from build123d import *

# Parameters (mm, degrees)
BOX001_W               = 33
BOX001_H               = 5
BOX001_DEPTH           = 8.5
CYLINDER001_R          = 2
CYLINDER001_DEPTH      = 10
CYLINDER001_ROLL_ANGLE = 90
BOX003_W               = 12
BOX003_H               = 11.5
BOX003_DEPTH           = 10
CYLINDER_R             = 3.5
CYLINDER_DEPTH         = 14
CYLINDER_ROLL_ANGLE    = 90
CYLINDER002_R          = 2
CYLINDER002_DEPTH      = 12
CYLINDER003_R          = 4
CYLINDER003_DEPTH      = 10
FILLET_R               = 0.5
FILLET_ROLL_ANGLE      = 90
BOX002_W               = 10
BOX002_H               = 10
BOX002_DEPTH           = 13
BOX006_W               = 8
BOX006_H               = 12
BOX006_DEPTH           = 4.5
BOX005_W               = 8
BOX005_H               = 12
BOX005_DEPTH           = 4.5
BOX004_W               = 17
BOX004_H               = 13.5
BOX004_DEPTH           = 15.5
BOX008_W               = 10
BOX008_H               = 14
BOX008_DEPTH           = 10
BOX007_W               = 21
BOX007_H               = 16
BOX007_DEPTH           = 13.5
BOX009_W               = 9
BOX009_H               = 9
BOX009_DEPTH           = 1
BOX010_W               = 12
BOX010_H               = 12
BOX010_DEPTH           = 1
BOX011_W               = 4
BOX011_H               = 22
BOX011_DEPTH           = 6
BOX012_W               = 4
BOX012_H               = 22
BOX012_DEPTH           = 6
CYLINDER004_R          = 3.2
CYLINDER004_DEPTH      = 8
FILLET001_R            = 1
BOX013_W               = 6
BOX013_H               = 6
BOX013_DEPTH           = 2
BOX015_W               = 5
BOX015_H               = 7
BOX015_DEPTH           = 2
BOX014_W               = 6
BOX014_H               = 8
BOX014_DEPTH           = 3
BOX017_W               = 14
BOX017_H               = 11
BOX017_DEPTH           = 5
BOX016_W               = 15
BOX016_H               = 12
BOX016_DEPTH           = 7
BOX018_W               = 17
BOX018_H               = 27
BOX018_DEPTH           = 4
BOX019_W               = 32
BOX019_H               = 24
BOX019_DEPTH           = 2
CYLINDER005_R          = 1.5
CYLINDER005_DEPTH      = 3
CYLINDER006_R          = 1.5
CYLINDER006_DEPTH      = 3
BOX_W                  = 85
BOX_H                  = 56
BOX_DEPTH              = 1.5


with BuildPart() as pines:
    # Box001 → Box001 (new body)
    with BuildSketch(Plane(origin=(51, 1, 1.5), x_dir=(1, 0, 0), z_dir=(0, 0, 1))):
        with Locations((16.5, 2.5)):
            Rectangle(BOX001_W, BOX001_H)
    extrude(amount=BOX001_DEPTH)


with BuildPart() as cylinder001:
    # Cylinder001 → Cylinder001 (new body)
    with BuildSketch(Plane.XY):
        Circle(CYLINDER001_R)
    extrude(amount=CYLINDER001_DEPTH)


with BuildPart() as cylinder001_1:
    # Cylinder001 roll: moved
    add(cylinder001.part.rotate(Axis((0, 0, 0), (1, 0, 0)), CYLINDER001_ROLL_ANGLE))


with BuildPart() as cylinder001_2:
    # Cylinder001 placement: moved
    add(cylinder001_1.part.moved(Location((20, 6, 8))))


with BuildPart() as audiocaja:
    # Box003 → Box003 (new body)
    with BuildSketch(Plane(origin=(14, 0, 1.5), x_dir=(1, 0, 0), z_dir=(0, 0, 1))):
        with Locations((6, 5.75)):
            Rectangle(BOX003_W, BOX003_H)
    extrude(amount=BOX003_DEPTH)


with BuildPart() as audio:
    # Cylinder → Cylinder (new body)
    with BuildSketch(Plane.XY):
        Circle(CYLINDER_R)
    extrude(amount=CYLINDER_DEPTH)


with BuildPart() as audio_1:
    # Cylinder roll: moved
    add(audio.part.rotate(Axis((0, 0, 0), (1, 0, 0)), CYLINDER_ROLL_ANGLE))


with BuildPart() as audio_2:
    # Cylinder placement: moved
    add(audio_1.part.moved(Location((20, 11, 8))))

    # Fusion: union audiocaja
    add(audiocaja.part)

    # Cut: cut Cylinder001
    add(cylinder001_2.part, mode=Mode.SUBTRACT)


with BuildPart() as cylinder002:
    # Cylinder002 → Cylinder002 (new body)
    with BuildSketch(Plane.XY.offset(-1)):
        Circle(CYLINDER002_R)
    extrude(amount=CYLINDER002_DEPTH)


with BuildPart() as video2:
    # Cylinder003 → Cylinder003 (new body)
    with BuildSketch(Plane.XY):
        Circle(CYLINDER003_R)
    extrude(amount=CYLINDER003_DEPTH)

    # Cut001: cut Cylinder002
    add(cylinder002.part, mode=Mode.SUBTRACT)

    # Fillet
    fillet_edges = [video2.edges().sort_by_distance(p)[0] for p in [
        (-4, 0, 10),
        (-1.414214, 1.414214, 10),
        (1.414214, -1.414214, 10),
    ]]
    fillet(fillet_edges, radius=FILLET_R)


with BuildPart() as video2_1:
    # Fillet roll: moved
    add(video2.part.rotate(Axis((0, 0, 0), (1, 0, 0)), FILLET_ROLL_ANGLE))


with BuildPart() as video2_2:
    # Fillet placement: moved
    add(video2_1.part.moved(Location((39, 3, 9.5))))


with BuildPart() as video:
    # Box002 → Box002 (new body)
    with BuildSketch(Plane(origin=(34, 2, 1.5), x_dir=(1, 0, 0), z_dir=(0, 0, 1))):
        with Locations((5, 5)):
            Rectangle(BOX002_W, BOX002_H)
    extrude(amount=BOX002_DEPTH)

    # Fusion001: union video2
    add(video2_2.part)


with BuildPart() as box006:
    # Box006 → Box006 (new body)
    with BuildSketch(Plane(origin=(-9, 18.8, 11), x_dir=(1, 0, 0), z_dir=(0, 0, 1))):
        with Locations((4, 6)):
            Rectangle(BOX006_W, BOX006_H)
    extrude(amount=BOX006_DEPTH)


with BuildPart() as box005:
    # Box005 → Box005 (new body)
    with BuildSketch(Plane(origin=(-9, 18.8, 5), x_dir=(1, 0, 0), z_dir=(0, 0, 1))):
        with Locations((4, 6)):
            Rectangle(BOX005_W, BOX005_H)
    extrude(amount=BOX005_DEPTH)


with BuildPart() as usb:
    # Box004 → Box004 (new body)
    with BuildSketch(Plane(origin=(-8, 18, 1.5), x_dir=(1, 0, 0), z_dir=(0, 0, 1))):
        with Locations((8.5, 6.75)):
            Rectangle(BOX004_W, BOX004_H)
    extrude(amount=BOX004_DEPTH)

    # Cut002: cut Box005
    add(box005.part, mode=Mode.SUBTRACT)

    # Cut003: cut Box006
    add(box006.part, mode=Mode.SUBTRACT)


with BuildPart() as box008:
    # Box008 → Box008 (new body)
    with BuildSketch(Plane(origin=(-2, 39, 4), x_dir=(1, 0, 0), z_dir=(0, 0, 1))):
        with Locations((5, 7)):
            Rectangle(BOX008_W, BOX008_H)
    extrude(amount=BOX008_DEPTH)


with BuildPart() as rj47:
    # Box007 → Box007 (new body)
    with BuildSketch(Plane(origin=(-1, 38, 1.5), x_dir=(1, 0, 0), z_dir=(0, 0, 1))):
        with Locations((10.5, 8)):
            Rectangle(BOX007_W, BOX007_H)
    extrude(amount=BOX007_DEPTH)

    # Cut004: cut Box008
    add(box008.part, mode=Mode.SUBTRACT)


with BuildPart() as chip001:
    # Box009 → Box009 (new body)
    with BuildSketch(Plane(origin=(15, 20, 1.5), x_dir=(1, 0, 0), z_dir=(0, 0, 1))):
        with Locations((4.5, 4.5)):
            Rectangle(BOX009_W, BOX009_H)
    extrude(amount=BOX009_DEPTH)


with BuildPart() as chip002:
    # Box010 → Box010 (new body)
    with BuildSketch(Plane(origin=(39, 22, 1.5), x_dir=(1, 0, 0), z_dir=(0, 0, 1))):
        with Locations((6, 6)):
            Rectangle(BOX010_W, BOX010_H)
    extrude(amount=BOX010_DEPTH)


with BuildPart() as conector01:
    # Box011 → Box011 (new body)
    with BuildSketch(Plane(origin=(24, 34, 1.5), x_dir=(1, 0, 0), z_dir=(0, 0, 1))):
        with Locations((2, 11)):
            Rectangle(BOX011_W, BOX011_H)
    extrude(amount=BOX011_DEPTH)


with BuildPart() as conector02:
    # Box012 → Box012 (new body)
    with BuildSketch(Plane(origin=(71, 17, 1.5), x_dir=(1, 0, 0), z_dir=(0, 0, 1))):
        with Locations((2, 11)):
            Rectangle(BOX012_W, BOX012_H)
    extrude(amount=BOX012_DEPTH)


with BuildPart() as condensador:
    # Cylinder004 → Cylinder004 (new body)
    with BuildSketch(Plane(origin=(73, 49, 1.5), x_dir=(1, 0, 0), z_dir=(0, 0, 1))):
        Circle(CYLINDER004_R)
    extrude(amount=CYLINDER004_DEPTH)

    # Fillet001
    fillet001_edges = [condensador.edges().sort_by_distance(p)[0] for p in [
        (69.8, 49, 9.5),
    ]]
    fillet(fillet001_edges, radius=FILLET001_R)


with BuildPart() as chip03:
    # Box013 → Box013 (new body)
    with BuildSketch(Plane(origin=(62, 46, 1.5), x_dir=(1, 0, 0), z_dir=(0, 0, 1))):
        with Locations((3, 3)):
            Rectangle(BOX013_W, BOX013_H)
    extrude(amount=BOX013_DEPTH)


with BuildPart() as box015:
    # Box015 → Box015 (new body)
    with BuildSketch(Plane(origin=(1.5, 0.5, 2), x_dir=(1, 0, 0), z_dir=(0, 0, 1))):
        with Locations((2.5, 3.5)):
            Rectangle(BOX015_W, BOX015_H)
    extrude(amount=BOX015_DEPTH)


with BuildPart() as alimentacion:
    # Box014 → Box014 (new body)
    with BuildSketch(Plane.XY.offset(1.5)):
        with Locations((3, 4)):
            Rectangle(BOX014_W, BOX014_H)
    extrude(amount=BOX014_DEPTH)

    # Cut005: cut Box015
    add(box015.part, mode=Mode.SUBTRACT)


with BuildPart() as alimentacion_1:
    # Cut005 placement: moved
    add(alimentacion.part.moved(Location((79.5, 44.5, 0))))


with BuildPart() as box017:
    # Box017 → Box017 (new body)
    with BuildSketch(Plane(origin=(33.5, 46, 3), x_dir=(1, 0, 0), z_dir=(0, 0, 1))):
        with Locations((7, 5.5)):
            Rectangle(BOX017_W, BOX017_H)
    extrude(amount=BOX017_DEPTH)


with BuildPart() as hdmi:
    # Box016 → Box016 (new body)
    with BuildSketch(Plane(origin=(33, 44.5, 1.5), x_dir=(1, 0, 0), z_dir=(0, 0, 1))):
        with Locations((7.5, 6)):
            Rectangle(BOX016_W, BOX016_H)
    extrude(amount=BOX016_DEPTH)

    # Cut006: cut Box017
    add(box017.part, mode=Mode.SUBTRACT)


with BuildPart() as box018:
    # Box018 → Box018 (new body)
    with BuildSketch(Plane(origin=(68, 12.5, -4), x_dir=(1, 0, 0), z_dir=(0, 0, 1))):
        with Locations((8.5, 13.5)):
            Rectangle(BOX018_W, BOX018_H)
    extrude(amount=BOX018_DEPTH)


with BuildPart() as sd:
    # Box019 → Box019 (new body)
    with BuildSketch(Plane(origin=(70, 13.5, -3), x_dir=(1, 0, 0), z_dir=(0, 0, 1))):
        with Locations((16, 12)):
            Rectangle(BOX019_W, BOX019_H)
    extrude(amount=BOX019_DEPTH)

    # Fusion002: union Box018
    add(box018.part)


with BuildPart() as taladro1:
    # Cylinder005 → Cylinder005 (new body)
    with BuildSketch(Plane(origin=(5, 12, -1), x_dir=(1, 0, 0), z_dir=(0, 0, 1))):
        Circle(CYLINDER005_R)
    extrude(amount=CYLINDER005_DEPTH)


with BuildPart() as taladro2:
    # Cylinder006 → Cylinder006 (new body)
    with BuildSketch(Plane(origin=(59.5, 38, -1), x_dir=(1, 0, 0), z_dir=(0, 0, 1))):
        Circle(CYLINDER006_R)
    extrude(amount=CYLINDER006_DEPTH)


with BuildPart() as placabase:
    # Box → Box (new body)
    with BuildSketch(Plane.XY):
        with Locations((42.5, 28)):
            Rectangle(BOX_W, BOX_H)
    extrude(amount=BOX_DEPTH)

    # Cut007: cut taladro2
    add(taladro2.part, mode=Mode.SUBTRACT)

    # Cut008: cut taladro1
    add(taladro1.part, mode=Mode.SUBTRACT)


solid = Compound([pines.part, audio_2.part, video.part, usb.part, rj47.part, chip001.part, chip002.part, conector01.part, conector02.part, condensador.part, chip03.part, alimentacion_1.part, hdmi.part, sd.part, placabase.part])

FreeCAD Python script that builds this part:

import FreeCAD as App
import Part
import Sketcher

V = App.Vector


def edges_at(feature, points):
    """Names of the edges that pass closest to the given points."""
    edges = feature.Shape.Edges
    near = lambda p: min(range(len(edges)), key=lambda i: edges[i].distToShape(Part.Vertex(*p))[0])
    return sorted({f"Edge{near(p) + 1}" for p in points})

doc = App.newDocument("Part")
params = doc.addObject("Spreadsheet::Sheet", "Params")
for row, (alias, value) in enumerate([
    ("sketch1_width", "33 mm"),
    ("sketch1_height", "5 mm"),
    ("pad1_length", "8.5 mm"),
    ("sketch2_diameter", "4 mm"),
    ("pad2_length", "10 mm"),
    ("sketch3_width", "12 mm"),
    ("sketch3_height", "11.5 mm"),
    ("pad3_length", "10 mm"),
    ("sketch4_diameter", "7 mm"),
    ("pad4_length", "14 mm"),
    ("sketch5_diameter", "4 mm"),
    ("pad5_length", "12 mm"),
    ("sketch6_diameter", "8 mm"),
    ("pad6_length", "10 mm"),
    ("fillet_radius", "0.5 mm"),
    ("sketch7_width", "10 mm"),
    ("pad7_length", "13 mm"),
    ("sketch8_width", "8 mm"),
    ("sketch8_height", "12 mm"),
    ("pad8_length", "4.5 mm"),
    ("sketch9_width", "8 mm"),
    ("sketch9_height", "12 mm"),
    ("pad9_length", "4.5 mm"),
    ("sketch10_width", "17 mm"),
    ("sketch10_height", "13.5 mm"),
    ("pad10_length", "15.5 mm"),
    ("sketch11_width", "10 mm"),
    ("sketch11_height", "14 mm"),
    ("pad11_length", "10 mm"),
    ("sketch12_width", "21 mm"),
    ("sketch12_height", "16 mm"),
    ("pad12_length", "13.5 mm"),
    ("sketch13_width", "9 mm"),
    ("pad13_length", "1 mm"),
    ("sketch14_width", "12 mm"),
    ("pad14_length", "1 mm"),
    ("sketch15_width", "4 mm"),
    ("sketch15_height", "22 mm"),
    ("pad15_length", "6 mm"),
    ("sketch16_width", "4 mm"),
    ("sketch16_height", "22 mm"),
    ("pad16_length", "6 mm"),
    ("sketch17_diameter", "6.4 mm"),
    ("pad17_length", "8 mm"),
    ("fillet2_radius", "1 mm"),
    ("sketch18_width", "6 mm"),
    ("pad18_length", "2 mm"),
    ("sketch19_width", "5 mm"),
    ("sketch19_height", "7 mm"),
    ("pad19_length", "2 mm"),
    ("sketch20_width", "6 mm"),
    ("sketch20_height", "8 mm"),
    ("pad20_length", "3 mm"),
    ("sketch21_width", "14 mm"),
    ("sketch21_height", "11 mm"),
    ("pad21_length", "5 mm"),
    ("sketch22_width", "15 mm"),
    ("sketch22_height", "12 mm"),
    ("pad22_length", "7 mm"),
    ("sketch23_width", "17 mm"),
    ("sketch23_height", "27 mm"),
    ("pad23_length", "4 mm"),
    ("sketch24_width", "32 mm"),
    ("sketch24_height", "24 mm"),
    ("pad24_length", "2 mm"),
    ("sketch25_diameter", "3 mm"),
    ("pad25_length", "3 mm"),
    ("sketch26_diameter", "3 mm"),
    ("pad26_length", "3 mm"),
    ("sketch27_width", "85 mm"),
    ("sketch27_height", "56 mm"),
    ("pad27_length", "1.5 mm"),
], start=1):
    params.set(f"A{row}", alias)
    params.set(f"B{row}", "=" + value)
    params.setAlias(f"B{row}", alias)

body = doc.addObject("PartDesign::Body", "Body")

sketch1 = body.newObject("Sketcher::SketchObject", "Sketch")
sketch1.AttachmentSupport = (doc.getObject("XY_Plane"), [""])
sketch1.MapMode = "FlatFace"
sketch1.AttachmentOffset = App.Placement(V(0, 0, 1.5), App.Rotation())
sketch1.addGeometry([
    Part.LineSegment(V(51, 6, 0), V(51, 1, 0)),
    Part.LineSegment(V(51, 1, 0), V(84, 1, 0)),
    Part.LineSegment(V(84, 1, 0), V(84, 6, 0)),
    Part.LineSegment(V(84, 6, 0), V(51, 6, 0)),
], False)
sketch1.addConstraint([
    Sketcher.Constraint("Coincident", 0, 2, 1, 1),
    Sketcher.Constraint("Coincident", 1, 2, 2, 1),
    Sketcher.Constraint("Coincident", 2, 2, 3, 1),
    Sketcher.Constraint("Coincident", 3, 2, 0, 1),
    Sketcher.Constraint("Vertical", 0),
    Sketcher.Constraint("Horizontal", 1),
    Sketcher.Constraint("Vertical", 2),
    Sketcher.Constraint("Horizontal", 3),
    Sketcher.Constraint("DistanceX", 1, 1, 1, 2, 33.0),
    Sketcher.Constraint("DistanceY", 0, 2, 0, 1, 5.0),
    Sketcher.Constraint("DistanceX", -1, 1, 0, 2, 51.0),
    Sketcher.Constraint("DistanceY", -1, 1, 0, 2, 1.0),
])
sketch1.setExpression("Constraints[8]", "Params.sketch1_width")
sketch1.setExpression("Constraints[9]", "Params.sketch1_height")
pad1 = body.newObject("PartDesign::Pad", "Pad")
pad1.Profile = sketch1
pad1.setExpression("Length", "Params.pad1_length")
body2 = doc.addObject("PartDesign::Body", "Body001")

sketch2 = body2.newObject("Sketcher::SketchObject", "Sketch001")
sketch2.AttachmentSupport = (doc.getObject("XY_Plane001"), [""])
sketch2.MapMode = "FlatFace"
sketch2.addGeometry(Part.Circle(V(0, 0, 0), V(0, 0, 1), 2), False)
sketch2.addConstraint([
    Sketcher.Constraint("Coincident", 0, 3, -1, 1),
    Sketcher.Constraint("Diameter", 0, 4.0),
])
sketch2.setExpression("Constraints[1]", "Params.sketch2_diameter")
pad2 = body2.newObject("PartDesign::Pad", "Pad001")
pad2.Profile = sketch2
pad2.setExpression("Length", "Params.pad2_length")
body3 = doc.addObject("PartDesign::Body", "Body002")
doc.recompute()

body2.Placement = App.Placement(V(0, 0, 0), App.Rotation(V(1, 0, 0), 90))
boolean = body3.newObject("PartDesign::Boolean", "Boolean")
boolean.Type = "Fuse"
boolean.addObjects([body2])
body4 = doc.addObject("PartDesign::Body", "Body003")
doc.recompute()

body3.Placement = App.Placement(V(20, 6, 8), App.Rotation(V(0, 0, 1), 0))
boolean2 = body4.newObject("PartDesign::Boolean", "Boolean001")
boolean2.Type = "Fuse"
boolean2.addObjects([body3])
body5 = doc.addObject("PartDesign::Body", "Body004")

sketch3 = body5.newObject("Sketcher::SketchObject", "Sketch002")
sketch3.AttachmentSupport = (doc.getObject("XY_Plane004"), [""])
sketch3.MapMode = "FlatFace"
sketch3.AttachmentOffset = App.Placement(V(0, 0, 1.5), App.Rotation())
sketch3.addGeometry([
    Part.LineSegment(V(14, 12, 0), V(14, 0, 0)),
    Part.LineSegment(V(14, 0, 0), V(26, 0, 0)),
    Part.LineSegment(V(26, 0, 0), V(26, 12, 0)),
    Part.LineSegment(V(26, 12, 0), V(14, 12, 0)),
], False)
sketch3.addConstraint([
    Sketcher.Constraint("Coincident", 0, 2, 1, 1),
    Sketcher.Constraint("Coincident", 1, 2, 2, 1),
    Sketcher.Constraint("Coincident", 2, 2, 3, 1),
    Sketcher.Constraint("Coincident", 3, 2, 0, 1),
    Sketcher.Constraint("Vertical", 0),
    Sketcher.Constraint("Horizontal", 1),
    Sketcher.Constraint("Vertical", 2),
    Sketcher.Constraint("Horizontal", 3),
    Sketcher.Constraint("PointOnObject", 0, 2, -1),
    Sketcher.Constraint("DistanceX", 1, 1, 1, 2, 12.0),
    Sketcher.Constraint("DistanceY", 0, 2, 0, 1, 11.5),
    Sketcher.Constraint("DistanceX", -1, 1, 0, 2, 14.0),
])
sketch3.setExpression("Constraints[9]", "Params.sketch3_width")
sketch3.setExpression("Constraints[10]", "Params.sketch3_height")
pad3 = body5.newObject("PartDesign::Pad", "Pad002")
pad3.Profile = sketch3
pad3.setExpression("Length", "Params.pad3_length")
body6 = doc.addObject("PartDesign::Body", "Body005")

sketch4 = body6.newObject("Sketcher::SketchObject", "Sketch003")
sketch4.AttachmentSupport = (doc.getObject("XY_Plane005"), [""])
sketch4.MapMode = "FlatFace"
sketch4.addGeometry(Part.Circle(V(0, 0, 0), V(0, 0, 1), 3.5), False)
sketch4.addConstraint([
    Sketcher.Constraint("Coincident", 0, 3, -1, 1),
    Sketcher.Constraint("Diameter", 0, 7.0),
])
sketch4.setExpression("Constraints[1]", "Params.sketch4_diameter")
pad4 = body6.newObject("PartDesign::Pad", "Pad003")
pad4.Profile = sketch4
pad4.setExpression("Length", "Params.pad4_length")
body7 = doc.addObject("PartDesign::Body", "Body006")
doc.recompute()

body6.Placement = App.Placement(V(0, 0, 0), App.Rotation(V(1, 0, 0), 90))
boolean3 = body7.newObject("PartDesign::Boolean", "Boolean002")
boolean3.Type = "Fuse"
boolean3.addObjects([body6])
body8 = doc.addObject("PartDesign::Body", "Body007")
doc.recompute()

body7.Placement = App.Placement(V(20, 11, 8), App.Rotation(V(0, 0, 1), 0))
boolean4 = body8.newObject("PartDesign::Boolean", "Boolean003")
boolean4.Type = "Fuse"
boolean4.addObjects([body7])
doc.recompute()

boolean5 = body8.newObject("PartDesign::Boolean", "Boolean004")
boolean5.Type = "Fuse"
boolean5.addObjects([body5])
doc.recompute()

boolean6 = body8.newObject("PartDesign::Boolean", "Boolean005")
boolean6.Type = "Cut"
boolean6.addObjects([body4])
body9 = doc.addObject("PartDesign::Body", "Body008")

sketch5 = body9.newObject("Sketcher::SketchObject", "Sketch004")
sketch5.AttachmentSupport = (doc.getObject("XY_Plane008"), [""])
sketch5.MapMode = "FlatFace"
sketch5.AttachmentOffset = App.Placement(V(0, 0, -1), App.Rotation())
sketch5.addGeometry(Part.Circle(V(0, 0, 0), V(0, 0, 1), 2), False)
sketch5.addConstraint([
    Sketcher.Constraint("Coincident", 0, 3, -1, 1),
    Sketcher.Constraint("Diameter", 0, 4.0),
])
sketch5.setExpression("Constraints[1]", "Params.sketch5_diameter")
pad5 = body9.newObject("PartDesign::Pad", "Pad004")
pad5.Profile = sketch5
pad5.setExpression("Length", "Params.pad5_length")
body10 = doc.addObject("PartDesign::Body", "Body009")

sketch6 = body10.newObject("Sketcher::SketchObject", "Sketch005")
sketch6.AttachmentSupport = (doc.getObject("XY_Plane009"), [""])
sketch6.MapMode = "FlatFace"
sketch6.addGeometry(Part.Circle(V(0, 0, 0), V(0, 0, 1), 4), False)
sketch6.addConstraint([
    Sketcher.Constraint("Coincident", 0, 3, -1, 1),
    Sketcher.Constraint("Diameter", 0, 8.0),
])
sketch6.setExpression("Constraints[1]", "Params.sketch6_diameter")
pad6 = body10.newObject("PartDesign::Pad", "Pad005")
pad6.Profile = sketch6
pad6.setExpression("Length", "Params.pad6_length")
doc.recompute()

boolean7 = body10.newObject("PartDesign::Boolean", "Boolean006")
boolean7.Type = "Cut"
boolean7.addObjects([body9])
doc.recompute()

fillet = body10.newObject("PartDesign::Fillet", "Fillet")
fillet.Base = (boolean7, edges_at(boolean7, [(-4, 0, 10), (-2, 0, 10), (-2, 0, 10)]))
fillet.setExpression("Radius", "Params.fillet_radius")
body11 = doc.addObject("PartDesign::Body", "Body010")
doc.recompute()

body10.Placement = App.Placement(V(0, 0, 0), App.Rotation(V(1, 0, 0), 90))
boolean8 = body11.newObject("PartDesign::Boolean", "Boolean007")
boolean8.Type = "Fuse"
boolean8.addObjects([body10])
body12 = doc.addObject("PartDesign::Body", "Body011")
doc.recompute()

body11.Placement = App.Placement(V(39, 3, 9.5), App.Rotation(V(0, 0, 1), 0))
boolean9 = body12.newObject("PartDesign::Boolean", "Boolean008")
boolean9.Type = "Fuse"
boolean9.addObjects([body11])
body13 = doc.addObject("PartDesign::Body", "Body012")

sketch7 = body13.newObject("Sketcher::SketchObject", "Sketch006")
sketch7.AttachmentSupport = (doc.getObject("XY_Plane012"), [""])
sketch7.MapMode = "FlatFace"
sketch7.AttachmentOffset = App.Placement(V(0, 0, 1.5), App.Rotation())
sketch7.addGeometry([
    Part.LineSegment(V(34, 12, 0), V(34, 2, 0)),
    Part.LineSegment(V(34, 2, 0), V(44, 2, 0)),
    Part.LineSegment(V(44, 2, 0), V(44, 12, 0)),
    Part.LineSegment(V(44, 12, 0), V(34, 12, 0)),
], False)
sketch7.addConstraint([
    Sketcher.Constraint("Coincident", 0, 2, 1, 1),
    Sketcher.Constraint("Coincident", 1, 2, 2, 1),
    Sketcher.Constraint("Coincident", 2, 2, 3, 1),
    Sketcher.Constraint("Coincident", 3, 2, 0, 1),
    Sketcher.Constraint("Vertical", 0),
    Sketcher.Constraint("Horizontal", 1),
    Sketcher.Constraint("Vertical", 2),
    Sketcher.Constraint("Horizontal", 3),
    Sketcher.Constraint("Equal", 3, 0),
    Sketcher.Constraint("DistanceX", 1, 1, 1, 2, 10.0),
    Sketcher.Constraint("DistanceX", -1, 1, 0, 2, 34.0),
    Sketcher.Constraint("DistanceY", -1, 1, 0, 2, 2.0),
])
sketch7.setExpression("Constraints[9]", "Params.sketch7_width")
pad7 = body13.newObject("PartDesign::Pad", "Pad006")
pad7.Profile = sketch7
pad7.setExpression("Length", "Params.pad7_length")
doc.recompute()

boolean10 = body13.newObject("PartDesign::Boolean", "Boolean009")
boolean10.Type = "Fuse"
boolean10.addObjects([body12])
body14 = doc.addObject("PartDesign::Body", "Body013")

sketch8 = body14.newObject("Sketcher::SketchObject", "Sketch007")
sketch8.AttachmentSupport = (doc.getObject("XY_Plane013"), [""])
sketch8.MapMode = "FlatFace"
sketch8.AttachmentOffset = App.Placement(V(0, 0, 11), App.Rotation())
sketch8.addGeometry([
    Part.LineSegment(V(-9, 31, 0), V(-9, 19, 0)),
    Part.LineSegment(V(-9, 19, 0), V(-1, 19, 0)),
    Part.LineSegment(V(-1, 19, 0), V(-1, 31, 0)),
    Part.LineSegment(V(-1, 31, 0), V(-9, 31, 0)),
], False)
sketch8.addConstraint([
    Sketcher.Constraint("Coincident", 0, 2, 1, 1),
    Sketcher.Constraint("Coincident", 1, 2, 2, 1),
    Sketcher.Constraint("Coincident", 2, 2, 3, 1),
    Sketcher.Constraint("Coincident", 3, 2, 0, 1),
    Sketcher.Constraint("Vertical", 0),
    Sketcher.Constraint("Horizontal", 1),
    Sketcher.Constraint("Vertical", 2),
    Sketcher.Constraint("Horizontal", 3),
    Sketcher.Constraint("DistanceX", 1, 1, 1, 2, 8.0),
    Sketcher.Constraint("DistanceY", 0, 2, 0, 1, 12.0),
    Sketcher.Constraint("DistanceX", 0, 2, -1, 1, 9.0),
    Sketcher.Constraint("DistanceY", -1, 1, 0, 2, 18.8),
])
sketch8.setExpression("Constraints[8]", "Params.sketch8_width")
sketch8.setExpression("Constraints[9]", "Params.sketch8_height")
pad8 = body14.newObject("PartDesign::Pad", "Pad007")
pad8.Profile = sketch8
pad8.setExpression("Length", "Params.pad8_length")
body15 = doc.addObject("PartDesign::Body", "Body014")

sketch9 = body15.newObject("Sketcher::SketchObject", "Sketch008")
sketch9.AttachmentSupport = (doc.getObject("XY_Plane014"), [""])
sketch9.MapMode = "FlatFace"
sketch9.AttachmentOffset = App.Placement(V(0, 0, 5), App.Rotation())
sketch9.addGeometry([
    Part.LineSegment(V(-9, 31, 0), V(-9, 19, 0)),
    Part.LineSegment(V(-9, 19, 0), V(-1, 19, 0)),
    Part.LineSegment(V(-1, 19, 0), V(-1, 31, 0)),
    Part.LineSegment(V(-1, 31, 0), V(-9, 31, 0)),
], False)
sketch9.addConstraint([
    Sketcher.Constraint("Coincident", 0, 2, 1, 1),
    Sketcher.Constraint("Coincident", 1, 2, 2, 1),
    Sketcher.Constraint("Coincident", 2, 2, 3, 1),
    Sketcher.Constraint("Coincident", 3, 2, 0, 1),
    Sketcher.Constraint("Vertical", 0),
    Sketcher.Constraint("Horizontal", 1),
    Sketcher.Constraint("Vertical", 2),
    Sketcher.Constraint("Horizontal", 3),
    Sketcher.Constraint("DistanceX", 1, 1, 1, 2, 8.0),
    Sketcher.Constraint("DistanceY", 0, 2, 0, 1, 12.0),
    Sketcher.Constraint("DistanceX", 0, 2, -1, 1, 9.0),
    Sketcher.Constraint("DistanceY", -1, 1, 0, 2, 18.8),
])
sketch9.setExpression("Constraints[8]", "Params.sketch9_width")
sketch9.setExpression("Constraints[9]", "Params.sketch9_height")
pad9 = body15.newObject("PartDesign::Pad", "Pad008")
pad9.Profile = sketch9
pad9.setExpression("Length", "Params.pad9_length")
body16 = doc.addObject("PartDesign::Body", "Body015")

sketch10 = body16.newObject("Sketcher::SketchObject", "Sketch009")
sketch10.AttachmentSupport = (doc.getObject("XY_Plane015"), [""])
sketch10.MapMode = "FlatFace"
sketch10.AttachmentOffset = App.Placement(V(0, 0, 1.5), App.Rotation())
sketch10.addGeometry([
    Part.LineSegment(V(-8, 32, 0), V(-8, 18, 0)),
    Part.LineSegment(V(-8, 18, 0), V(9, 18, 0)),
    Part.LineSegment(V(9, 18, 0), V(9, 32, 0)),
    Part.LineSegment(V(9, 32, 0), V(-8, 32, 0)),
], False)
sketch10.addConstraint([
    Sketcher.Constraint("Coincident", 0, 2, 1, 1),
    Sketcher.Constraint("Coincident", 1, 2, 2, 1),
    Sketcher.Constraint("Coincident", 2, 2, 3, 1),
    Sketcher.Constraint("Coincident", 3, 2, 0, 1),
    Sketcher.Constraint("Vertical", 0),
    Sketcher.Constraint("Horizontal", 1),
    Sketcher.Constraint("Vertical", 2),
    Sketcher.Constraint("Horizontal", 3),
    Sketcher.Constraint("DistanceX", 1, 1, 1, 2, 17.0),
    Sketcher.Constraint("DistanceY", 0, 2, 0, 1, 13.5),
    Sketcher.Constraint("DistanceX", 0, 2, -1, 1, 8.0),
    Sketcher.Constraint("DistanceY", -1, 1, 0, 2, 18.0),
])
sketch10.setExpression("Constraints[8]", "Params.sketch10_width")
sketch10.setExpression("Constraints[9]", "Params.sketch10_height")
pad10 = body16.newObject("PartDesign::Pad", "Pad009")
pad10.Profile = sketch10
pad10.setExpression("Length", "Params.pad10_length")
doc.recompute()

boolean11 = body16.newObject("PartDesign::Boolean", "Boolean010")
boolean11.Type = "Cut"
boolean11.addObjects([body15])
doc.recompute()

boolean12 = body16.newObject("PartDesign::Boolean", "Boolean011")
boolean12.Type = "Cut"
boolean12.addObjects([body14])
body17 = doc.addObject("PartDesign::Body", "Body016")

sketch11 = body17.newObject("Sketcher::SketchObject", "Sketch010")
sketch11.AttachmentSupport = (doc.getObject("XY_Plane016"), [""])
sketch11.MapMode = "FlatFace"
sketch11.AttachmentOffset = App.Placement(V(0, 0, 4), App.Rotation())
sketch11.addGeometry([
    Part.LineSegment(V(-2, 53, 0), V(-2, 39, 0)),
    Part.LineSegment(V(-2, 39, 0), V(8, 39, 0)),
    Part.LineSegment(V(8, 39, 0), V(8, 53, 0)),
    Part.LineSegment(V(8, 53, 0), V(-2, 53, 0)),
], False)
sketch11.addConstraint([
    Sketcher.Constraint("Coincident", 0, 2, 1, 1),
    Sketcher.Constraint("Coincident", 1, 2, 2, 1),
    Sketcher.Constraint("Coincident", 2, 2, 3, 1),
    Sketcher.Constraint("Coincident", 3, 2, 0, 1),
    Sketcher.Constraint("Vertical", 0),
    Sketcher.Constraint("Horizontal", 1),
    Sketcher.Constraint("Vertical", 2),
    Sketcher.Constraint("Horizontal", 3),
    Sketcher.Constraint("DistanceX", 1, 1, 1, 2, 10.0),
    Sketcher.Constraint("DistanceY", 0, 2, 0, 1, 14.0),
    Sketcher.Constraint("DistanceX", 0, 2, -1, 1, 2.0),
    Sketcher.Constraint("DistanceY", -1, 1, 0, 2, 39.0),
])
sketch11.setExpression("Constraints[8]", "Params.sketch11_width")
sketch11.setExpression("Constraints[9]", "Params.sketch11_height")
pad11 = body17.newObject("PartDesign::Pad", "Pad010")
pad11.Profile = sketch11
pad11.setExpression("Length", "Params.pad11_length")
body18 = doc.addObject("PartDesign::Body", "Body017")

sketch12 = body18.newObject("Sketcher::SketchObject", "Sketch011")
sketch12.AttachmentSupport = (doc.getObject("XY_Plane017"), [""])
sketch12.MapMode = "FlatFace"
sketch12.AttachmentOffset = App.Placement(V(0, 0, 1.5), App.Rotation())
sketch12.addGeometry([
    Part.LineSegment(V(-1, 54, 0), V(-1, 38, 0)),
    Part.LineSegment(V(-1, 38, 0), V(20, 38, 0)),
    Part.LineSegment(V(20, 38, 0), V(20, 54, 0)),
    Part.LineSegment(V(20, 54, 0), V(-1, 54, 0)),
], False)
sketch12.addConstraint([
    Sketcher.Constraint("Coincident", 0, 2, 1, 1),
    Sketcher.Constraint("Coincident", 1, 2, 2, 1),
    Sketcher.Constraint("Coincident", 2, 2, 3, 1),
    Sketcher.Constraint("Coincident", 3, 2, 0, 1),
    Sketcher.Constraint("Vertical", 0),
    Sketcher.Constraint("Horizontal", 1),
    Sketcher.Constraint("Vertical", 2),
    Sketcher.Constraint("Horizontal", 3),
    Sketcher.Constraint("DistanceX", 1, 1, 1, 2, 21.0),
    Sketcher.Constraint("DistanceY", 0, 2, 0, 1, 16.0),
    Sketcher.Constraint("DistanceX", 0, 2, -1, 1, 1.0),
    Sketcher.Constraint("DistanceY", -1, 1, 0, 2, 38.0),
])
sketch12.setExpression("Constraints[8]", "Params.sketch12_width")
sketch12.setExpression("Constraints[9]", "Params.sketch12_height")
pad12 = body18.newObject("PartDesign::Pad", "Pad011")
pad12.Profile = sketch12
pad12.setExpression("Length", "Params.pad12_length")
doc.recompute()

boolean13 = body18.newObject("PartDesign::Boolean", "Boolean012")
boolean13.Type = "Cut"
boolean13.addObjects([body17])
body19 = doc.addObject("PartDesign::Body", "Body018")

sketch13 = body19.newObject("Sketcher::SketchObject", "Sketch012")
sketch13.AttachmentSupport = (doc.getObject("XY_Plane018"), [""])
sketch13.MapMode = "FlatFace"
sketch13.AttachmentOffset = App.Placement(V(0, 0, 1.5), App.Rotation())
sketch13.addGeometry([
    Part.LineSegment(V(15, 29, 0), V(15, 20, 0)),
    Part.LineSegment(V(15, 20, 0), V(24, 20, 0)),
    Part.LineSegment(V(24, 20, 0), V(24, 29, 0)),
    Part.LineSegment(V(24, 29, 0), V(15, 29, 0)),
], False)
sketch13.addConstraint([
    Sketcher.Constraint("Coincident", 0, 2, 1, 1),
    Sketcher.Constraint("Coincident", 1, 2, 2, 1),
    Sketcher.Constraint("Coincident", 2, 2, 3, 1),
    Sketcher.Constraint("Coincident", 3, 2, 0, 1),
    Sketcher.Constraint("Vertical", 0),
    Sketcher.Constraint("Horizontal", 1),
    Sketcher.Constraint("Vertical", 2),
    Sketcher.Constraint("Horizontal", 3),
    Sketcher.Constraint("Equal", 3, 0),
    Sketcher.Constraint("DistanceX", 1, 1, 1, 2, 9.0),
    Sketcher.Constraint("DistanceX", -1, 1, 0, 2, 15.0),
    Sketcher.Constraint("DistanceY", -1, 1, 0, 2, 20.0),
])
sketch13.setExpression("Constraints[9]", "Params.sketch13_width")
pad13 = body19.newObject("PartDesign::Pad", "Pad012")
pad13.Profile = sketch13
pad13.setExpression("Length", "Params.pad13_length")
body20 = doc.addObject("PartDesign::Body", "Body019")

sketch14 = body20.newObject("Sketcher::SketchObject", "Sketch013")
sketch14.AttachmentSupport = (doc.getObject("XY_Plane019"), [""])
sketch14.MapMode = "FlatFace"
sketch14.AttachmentOffset = App.Placement(V(0, 0, 1.5), App.Rotation())
sketch14.addGeometry([
    Part.LineSegment(V(39, 34, 0), V(39, 22, 0)),
    Part.LineSegment(V(39, 22, 0), V(51, 22, 0)),
    Part.LineSegment(V(51, 22, 0), V(51, 34, 0)),
    Part.LineSegment(V(51, 34, 0), V(39, 34, 0)),
], False)
sketch14.addConstraint([
    Sketcher.Constraint("Coincident", 0, 2, 1, 1),
    Sketcher.Constraint("Coincident", 1, 2, 2, 1),
    Sketcher.Constraint("Coincident", 2, 2, 3, 1),
    Sketcher.Constraint("Coincident", 3, 2, 0, 1),
    Sketcher.Constraint("Vertical", 0),
    Sketcher.Constraint("Horizontal", 1),
    Sketcher.Constraint("Vertical", 2),
    Sketcher.Constraint("Horizontal", 3),
    Sketcher.Constraint("Equal", 3, 0),
    Sketcher.Constraint("DistanceX", 1, 1, 1, 2, 12.0),
    Sketcher.Constraint("DistanceX", -1, 1, 0, 2, 39.0),
    Sketcher.Constraint("DistanceY", -1, 1, 0, 2, 22.0),
])
sketch14.setExpression("Constraints[9]", "Params.sketch14_width")
pad14 = body20.newObject("PartDesign::Pad", "Pad013")
pad14.Profile = sketch14
pad14.setExpression("Length", "Params.pad14_length")
body21 = doc.addObject("PartDesign::Body", "Body020")

sketch15 = body21.newObject("Sketcher::SketchObject", "Sketch014")
sketch15.AttachmentSupport = (doc.getObject("XY_Plane020"), [""])
sketch15.MapMode = "FlatFace"
sketch15.AttachmentOffset = App.Placement(V(0, 0, 1.5), App.Rotation())
sketch15.addGeometry([
    Part.LineSegment(V(24, 56, 0), V(24, 34, 0)),
    Part.LineSegment(V(24, 34, 0), V(28, 34, 0)),
    Part.LineSegment(V(28, 34, 0), V(28, 56, 0)),
    Part.LineSegment(V(28, 56, 0), V(24, 56, 0)),
], False)
sketch15.addConstraint([
    Sketcher.Constraint("Coincident", 0, 2, 1, 1),
    Sketcher.Constraint("Coincident", 1, 2, 2, 1),
    Sketcher.Constraint("Coincident", 2, 2, 3, 1),
    Sketcher.Constraint("Coincident", 3, 2, 0, 1),
    Sketcher.Constraint("Vertical", 0),
    Sketcher.Constraint("Horizontal", 1),
    Sketcher.Constraint("Vertical", 2),
    Sketcher.Constraint("Horizontal", 3),
    Sketcher.Constraint("DistanceX", 1, 1, 1, 2, 4.0),
    Sketcher.Constraint("DistanceY", 0, 2, 0, 1, 22.0),
    Sketcher.Constraint("DistanceX", -1, 1, 0, 2, 24.0),
    Sketcher.Constraint("DistanceY", -1, 1, 0, 2, 34.0),
])
sketch15.setExpression("Constraints[8]", "Params.sketch15_width")
sketch15.setExpression("Constraints[9]", "Params.sketch15_height")
pad15 = body21.newObject("PartDesign::Pad", "Pad014")
pad15.Profile = sketch15
pad15.setExpression("Length", "Params.pad15_length")
body22 = doc.addObject("PartDesign::Body", "Body021")

sketch16 = body22.newObject("Sketcher::SketchObject", "Sketch015")
sketch16.AttachmentSupport = (doc.getObject("XY_Plane021"), [""])
sketch16.MapMode = "FlatFace"
sketch16.AttachmentOffset = App.Placement(V(0, 0, 1.5), App.Rotation())
sketch16.addGeometry([
    Part.LineSegment(V(71, 39, 0), V(71, 17, 0)),
    Part.LineSegment(V(71, 17, 0), V(75, 17, 0)),
    Part.LineSegment(V(75, 17, 0), V(75, 39, 0)),
    Part.LineSegment(V(75, 39, 0), V(71, 39, 0)),
], False)
sketch16.addConstraint([
    Sketcher.Constraint("Coincident", 0, 2, 1, 1),
    Sketcher.Constraint("Coincident", 1, 2, 2, 1),
    Sketcher.Constraint("Coincident", 2, 2, 3, 1),
    Sketcher.Constraint("Coincident", 3, 2, 0, 1),
    Sketcher.Constraint("Vertical", 0),
    Sketcher.Constraint("Horizontal", 1),
    Sketcher.Constraint("Vertical", 2),
    Sketcher.Constraint("Horizontal", 3),
    Sketcher.Constraint("DistanceX", 1, 1, 1, 2, 4.0),
    Sketcher.Constraint("DistanceY", 0, 2, 0, 1, 22.0),
    Sketcher.Constraint("DistanceX", -1, 1, 0, 2, 71.0),
    Sketcher.Constraint("DistanceY", -1, 1, 0, 2, 17.0),
])
sketch16.setExpression("Constraints[8]", "Params.sketch16_width")
sketch16.setExpression("Constraints[9]", "Params.sketch16_height")
pad16 = body22.newObject("PartDesign::Pad", "Pad015")
pad16.Profile = sketch16
pad16.setExpression("Length", "Params.pad16_length")
body23 = doc.addObject("PartDesign::Body", "Body022")

sketch17 = body23.newObject("Sketcher::SketchObject", "Sketch016")
sketch17.AttachmentSupport = (doc.getObject("XY_Plane022"), [""])
sketch17.MapMode = "FlatFace"
sketch17.AttachmentOffset = App.Placement(V(0, 0, 1.5), App.Rotation())
sketch17.addGeometry(Part.Circle(V(73, 49, 0), V(0, 0, 1), 3.2), False)
sketch17.addConstraint([
    Sketcher.Constraint("Diameter", 0, 6.4),
    Sketcher.Constraint("DistanceX", -1, 1, 0, 3, 73.0),
    Sketcher.Constraint("DistanceY", -1, 1, 0, 3, 49.0),
])
sketch17.setExpression("Constraints[0]", "Params.sketch17_diameter")
pad17 = body23.newObject("PartDesign::Pad", "Pad016")
pad17.Profile = sketch17
pad17.setExpression("Length", "Params.pad17_length")
doc.recompute()

fillet2 = body23.newObject("PartDesign::Fillet", "Fillet001")
fillet2.Base = (pad17, edges_at(pad17, [(69.8, 49, 9.5)]))
fillet2.setExpression("Radius", "Params.fillet2_radius")
body24 = doc.addObject("PartDesign::Body", "Body023")

sketch18 = body24.newObject("Sketcher::SketchObject", "Sketch017")
sketch18.AttachmentSupport = (doc.getObject("XY_Plane023"), [""])
sketch18.MapMode = "FlatFace"
sketch18.AttachmentOffset = App.Placement(V(0, 0, 1.5), App.Rotation())
sketch18.addGeometry([
    Part.LineSegment(V(62, 52, 0), V(62, 46, 0)),
    Part.LineSegment(V(62, 46, 0), V(68, 46, 0)),
    Part.LineSegment(V(68, 46, 0), V(68, 52, 0)),
    Part.LineSegment(V(68, 52, 0), V(62, 52, 0)),
], False)
sketch18.addConstraint([
    Sketcher.Constraint("Coincident", 0, 2, 1, 1),
    Sketcher.Constraint("Coincident", 1, 2, 2, 1),
    Sketcher.Constraint("Coincident", 2, 2, 3, 1),
    Sketcher.Constraint("Coincident", 3, 2, 0, 1),
    Sketcher.Constraint("Vertical", 0),
    Sketcher.Constraint("Horizontal", 1),
    Sketcher.Constraint("Vertical", 2),
    Sketcher.Constraint("Horizontal", 3),
    Sketcher.Constraint("Equal", 3, 0),
    Sketcher.Constraint("DistanceX", 1, 1, 1, 2, 6.0),
    Sketcher.Constraint("DistanceX", -1, 1, 0, 2, 62.0),
    Sketcher.Constraint("DistanceY", -1, 1, 0, 2, 46.0),
])
sketch18.setExpression("Constraints[9]", "Params.sketch18_width")
pad18 = body24.newObject("PartDesign::Pad", "Pad017")
pad18.Profile = sketch18
pad18.setExpression("Length", "Params.pad18_length")
body25 = doc.addObject("PartDesign::Body", "Body024")

sketch19 = body25.newObject("Sketcher::SketchObject", "Sketch018")
sketch19.AttachmentSupport = (doc.getObject("XY_Plane024"), [""])
sketch19.MapMode = "FlatFace"
sketch19.AttachmentOffset = App.Placement(V(0, 0, 2), App.Rotation())
sketch19.addGeometry([
    Part.LineSegment(V(2, 8, 0), V(2, 0, 0)),
    Part.LineSegment(V(2, 0, 0), V(6, 0, 0)),
    Part.LineSegment(V(6, 0, 0), V(6, 8, 0)),
    Part.LineSegment(V(6, 8, 0), V(2, 8, 0)),
], False)
sketch19.addConstraint([
    Sketcher.Constraint("Coincident", 0, 2, 1, 1),
    Sketcher.Constraint("Coincident", 1, 2, 2, 1),
    Sketcher.Constraint("Coincident", 2, 2, 3, 1),
    Sketcher.Constraint("Coincident", 3, 2, 0, 1),
    Sketcher.Constraint("Vertical", 0),
    Sketcher.Constraint("Horizontal", 1),
    Sketcher.Constraint("Vertical", 2),
    Sketcher.Constraint("Horizontal", 3),
    Sketcher.Constraint("DistanceX", 1, 1, 1, 2, 5.0),
    Sketcher.Constraint("DistanceY", 0, 2, 0, 1, 7.0),
    Sketcher.Constraint("DistanceX", -1, 1, 0, 2, 1.5),
    Sketcher.Constraint("DistanceY", -1, 1, 0, 2, 0.5),
])
sketch19.setExpression("Constraints[8]", "Params.sketch19_width")
sketch19.setExpression("Constraints[9]", "Params.sketch19_height")
pad19 = body25.newObject("PartDesign::Pad", "Pad018")
pad19.Profile = sketch19
pad19.setExpression("Length", "Params.pad19_length")
body26 = doc.addObject("PartDesign::Body", "Body025")

sketch20 = body26.newObject("Sketcher::SketchObject", "Sketch019")
sketch20.AttachmentSupport = (doc.getObject("XY_Plane025"), [""])
sketch20.MapMode = "FlatFace"
sketch20.AttachmentOffset = App.Placement(V(0, 0, 1.5), App.Rotation())
sketch20.addGeometry([
    Part.LineSegment(V(0, 8, 0), V(0, 0, 0)),
    Part.LineSegment(V(0, 0, 0), V(6, 0, 0)),
    Part.LineSegment(V(6, 0, 0), V(6, 8, 0)),
    Part.LineSegment(V(6, 8, 0), V(0, 8, 0)),
], False)
sketch20.addConstraint([
    Sketcher.Constraint("Coincident", 0, 2, 1, 1),
    Sketcher.Constraint("Coincident", 1, 2, 2, 1),
    Sketcher.Constraint("Coincident", 2, 2, 3, 1),
    Sketcher.Constraint("Coincident", 3, 2, 0, 1),
    Sketcher.Constraint("Vertical", 0),
    Sketcher.Constraint("Horizontal", 1),
    Sketcher.Constraint("Vertical", 2),
    Sketcher.Constraint("Horizontal", 3),
    Sketcher.Constraint("Coincident", 0, 2, -1, 1),
    Sketcher.Constraint("DistanceX", 1, 1, 1, 2, 6.0),
    Sketcher.Constraint("DistanceY", 0, 2, 0, 1, 8.0),
])
sketch20.setExpression("Constraints[9]", "Params.sketch20_width")
sketch20.setExpression("Constraints[10]", "Params.sketch20_height")
pad20 = body26.newObject("PartDesign::Pad", "Pad019")
pad20.Profile = sketch20
pad20.setExpression("Length", "Params.pad20_length")
doc.recompute()

boolean14 = body26.newObject("PartDesign::Boolean", "Boolean013")
boolean14.Type = "Cut"
boolean14.addObjects([body25])
body27 = doc.addObject("PartDesign::Body", "Body026")
doc.recompute()

body26.Placement = App.Placement(V(79.5, 44.5, 0), App.Rotation(V(0, 0, 1), 0))
boolean15 = body27.newObject("PartDesign::Boolean", "Boolean014")
boolean15.Type = "Fuse"
boolean15.addObjects([body26])
body28 = doc.addObject("PartDesign::Body", "Body027")

sketch21 = body28.newObject("Sketcher::SketchObject", "Sketch020")
sketch21.AttachmentSupport = (doc.getObject("XY_Plane027"), [""])
sketch21.MapMode = "FlatFace"
sketch21.AttachmentOffset = App.Placement(V(0, 0, 3), App.Rotation())
sketch21.addGeometry([
    Part.LineSegment(V(34, 57, 0), V(34, 46, 0)),
    Part.LineSegment(V(34, 46, 0), V(48, 46, 0)),
    Part.LineSegment(V(48, 46, 0), V(48, 57, 0)),
    Part.LineSegment(V(48, 57, 0), V(34, 57, 0)),
], False)
sketch21.addConstraint([
    Sketcher.Constraint("Coincident", 0, 2, 1, 1),
    Sketcher.Constraint("Coincident", 1, 2, 2, 1),
    Sketcher.Constraint("Coincident", 2, 2, 3, 1),
    Sketcher.Constraint("Coincident", 3, 2, 0, 1),
    Sketcher.Constraint("Vertical", 0),
    Sketcher.Constraint("Horizontal", 1),
    Sketcher.Constraint("Vertical", 2),
    Sketcher.Constraint("Horizontal", 3),
    Sketcher.Constraint("DistanceX", 1, 1, 1, 2, 14.0),
    Sketcher.Constraint("DistanceY", 0, 2, 0, 1, 11.0),
    Sketcher.Constraint("DistanceY", -1, 1, 0, 2, 46.0),
    Sketcher.Constraint("DistanceX", -1, 1, 0, 2, 33.5),
])
sketch21.setExpression("Constraints[8]", "Params.sketch21_width")
sketch21.setExpression("Constraints[9]", "Params.sketch21_height")
pad21 = body28.newObject("PartDesign::Pad", "Pad020")
pad21.Profile = sketch21
pad21.setExpression("Length", "Params.pad21_length")
body29 = doc.addObject("PartDesign::Body", "Body028")

sketch22 = body29.newObject("Sketcher::SketchObject", "Sketch021")
sketch22.AttachmentSupport = (doc.getObject("XY_Plane028"), [""])
sketch22.MapMode = "FlatFace"
sketch22.AttachmentOffset = App.Placement(V(0, 0, 1.5), App.Rotation())
sketch22.addGeometry([
    Part.LineSegment(V(33, 56, 0), V(33, 44, 0)),
    Part.LineSegment(V(33, 44, 0), V(48, 44, 0)),
    Part.LineSegment(V(48, 44, 0), V(48, 56, 0)),
    Part.LineSegment(V(48, 56, 0), V(33, 56, 0)),
], False)
sketch22.addConstraint([
    Sketcher.Constraint("Coincident", 0, 2, 1, 1),
    Sketcher.Constraint("Coincident", 1, 2, 2, 1),
    Sketcher.Constraint("Coincident", 2, 2, 3, 1),
    Sketcher.Constraint("Coincident", 3, 2, 0, 1),
    Sketcher.Constraint("Vertical", 0),
    Sketcher.Constraint("Horizontal", 1),
    Sketcher.Constraint("Vertical", 2),
    Sketcher.Constraint("Horizontal", 3),
    Sketcher.Constraint("DistanceX", 1, 1, 1, 2, 15.0),
    Sketcher.Constraint("DistanceY", 0, 2, 0, 1, 12.0),
    Sketcher.Constraint("DistanceX", -1, 1, 0, 2, 33.0),
    Sketcher.Constraint("DistanceY", -1, 1, 0, 2, 44.5),
])
sketch22.setExpression("Constraints[8]", "Params.sketch22_width")
sketch22.setExpression("Constraints[9]", "Params.sketch22_height")
pad22 = body29.newObject("PartDesign::Pad", "Pad021")
pad22.Profile = sketch22
pad22.setExpression("Length", "Params.pad22_length")
doc.recompute()

boolean16 = body29.newObject("PartDesign::Boolean", "Boolean015")
boolean16.Type = "Cut"
boolean16.addObjects([body28])
body30 = doc.addObject("PartDesign::Body", "Body029")

sketch23 = body30.newObject("Sketcher::SketchObject", "Sketch022")
sketch23.AttachmentSupport = (doc.getObject("XY_Plane029"), [""])
sketch23.MapMode = "FlatFace"
sketch23.AttachmentOffset = App.Placement(V(0, 0, -4), App.Rotation())
sketch23.addGeometry([
    Part.LineSegment(V(68, 40, 0), V(68, 12, 0)),
    Part.LineSegment(V(68, 12, 0), V(85, 12, 0)),
    Part.LineSegment(V(85, 12, 0), V(85, 40, 0)),
    Part.LineSegment(V(85, 40, 0), V(68, 40, 0)),
], False)
sketch23.addConstraint([
    Sketcher.Constraint("Coincident", 0, 2, 1, 1),
    Sketcher.Constraint("Coincident", 1, 2, 2, 1),
    Sketcher.Constraint("Coincident", 2, 2, 3, 1),
    Sketcher.Constraint("Coincident", 3, 2, 0, 1),
    Sketcher.Constraint("Vertical", 0),
    Sketcher.Constraint("Horizontal", 1),
    Sketcher.Constraint("Vertical", 2),
    Sketcher.Constraint("Horizontal", 3),
    Sketcher.Constraint("DistanceX", 1, 1, 1, 2, 17.0),
    Sketcher.Constraint("DistanceY", 0, 2, 0, 1, 27.0),
    Sketcher.Constraint("DistanceX", -1, 1, 0, 2, 68.0),
    Sketcher.Constraint("DistanceY", -1, 1, 0, 2, 12.5),
])
sketch23.setExpression("Constraints[8]", "Params.sketch23_width")
sketch23.setExpression("Constraints[9]", "Params.sketch23_height")
pad23 = body30.newObject("PartDesign::Pad", "Pad022")
pad23.Profile = sketch23
pad23.setExpression("Length", "Params.pad23_length")
body31 = doc.addObject("PartDesign::Body", "Body030")

sketch24 = body31.newObject("Sketcher::SketchObject", "Sketch023")
sketch24.AttachmentSupport = (doc.getObject("XY_Plane030"), [""])
sketch24.MapMode = "FlatFace"
sketch24.AttachmentOffset = App.Placement(V(0, 0, -3), App.Rotation())
sketch24.addGeometry([
    Part.LineSegment(V(70, 38, 0), V(70, 14, 0)),
    Part.LineSegment(V(70, 14, 0), V(102, 14, 0)),
    Part.LineSegment(V(102, 14, 0), V(102, 38, 0)),
    Part.LineSegment(V(102, 38, 0), V(70, 38, 0)),
], False)
sketch24.addConstraint([
    Sketcher.Constraint("Coincident", 0, 2, 1, 1),
    Sketcher.Constraint("Coincident", 1, 2, 2, 1),
    Sketcher.Constraint("Coincident", 2, 2, 3, 1),
    Sketcher.Constraint("Coincident", 3, 2, 0, 1),
    Sketcher.Constraint("Vertical", 0),
    Sketcher.Constraint("Horizontal", 1),
    Sketcher.Constraint("Vertical", 2),
    Sketcher.Constraint("Horizontal", 3),
    Sketcher.Constraint("DistanceX", 1, 1, 1, 2, 32.0),
    Sketcher.Constraint("DistanceY", 0, 2, 0, 1, 24.0),
    Sketcher.Constraint("DistanceX", -1, 1, 0, 2, 70.0),
    Sketcher.Constraint("DistanceY", -1, 1, 0, 2, 13.5),
])
sketch24.setExpression("Constraints[8]", "Params.sketch24_width")
sketch24.setExpression("Constraints[9]", "Params.sketch24_height")
pad24 = body31.newObject("PartDesign::Pad", "Pad023")
pad24.Profile = sketch24
pad24.setExpression("Length", "Params.pad24_length")
doc.recompute()

boolean17 = body31.newObject("PartDesign::Boolean", "Boolean016")
boolean17.Type = "Fuse"
boolean17.addObjects([body30])
body32 = doc.addObject("PartDesign::Body", "Body031")

sketch25 = body32.newObject("Sketcher::SketchObject", "Sketch024")
sketch25.AttachmentSupport = (doc.getObject("XY_Plane031"), [""])
sketch25.MapMode = "FlatFace"
sketch25.AttachmentOffset = App.Placement(V(0, 0, -1), App.Rotation())
sketch25.addGeometry(Part.Circle(V(5, 12, 0), V(0, 0, 1), 1.5), False)
sketch25.addConstraint([
    Sketcher.Constraint("Diameter", 0, 3.0),
    Sketcher.Constraint("DistanceX", -1, 1, 0, 3, 5.0),
    Sketcher.Constraint("DistanceY", -1, 1, 0, 3, 12.0),
])
sketch25.setExpression("Constraints[0]", "Params.sketch25_diameter")
pad25 = body32.newObject("PartDesign::Pad", "Pad024")
pad25.Profile = sketch25
pad25.setExpression("Length", "Params.pad25_length")
body33 = doc.addObject("PartDesign::Body", "Body032")

sketch26 = body33.newObject("Sketcher::SketchObject", "Sketch025")
sketch26.AttachmentSupport = (doc.getObject("XY_Plane032"), [""])
sketch26.MapMode = "FlatFace"
sketch26.AttachmentOffset = App.Placement(V(0, 0, -1), App.Rotation())
sketch26.addGeometry(Part.Circle(V(59.5, 38, 0), V(0, 0, 1), 1.5), False)
sketch26.addConstraint([
    Sketcher.Constraint("Diameter", 0, 3.0),
    Sketcher.Constraint("DistanceY", -1, 1, 0, 3, 38.0),
    Sketcher.Constraint("DistanceX", -1, 1, 0, 3, 59.5),
])
sketch26.setExpression("Constraints[0]", "Params.sketch26_diameter")
pad26 = body33.newObject("PartDesign::Pad", "Pad025")
pad26.Profile = sketch26
pad26.setExpression("Length", "Params.pad26_length")
body34 = doc.addObject("PartDesign::Body", "Body033")

sketch27 = body34.newObject("Sketcher::SketchObject", "Sketch026")
sketch27.AttachmentSupport = (doc.getObject("XY_Plane033"), [""])
sketch27.MapMode = "FlatFace"
sketch27.addGeometry([
    Part.LineSegment(V(0, 56, 0), V(0, 0, 0)),
    Part.LineSegment(V(0, 0, 0), V(85, 0, 0)),
    Part.LineSegment(V(85, 0, 0), V(85, 56, 0)),
    Part.LineSegment(V(85, 56, 0), V(0, 56, 0)),
], False)
sketch27.addConstraint([
    Sketcher.Constraint("Coincident", 0, 2, 1, 1),
    Sketcher.Constraint("Coincident", 1, 2, 2, 1),
    Sketcher.Constraint("Coincident", 2, 2, 3, 1),
    Sketcher.Constraint("Coincident", 3, 2, 0, 1),
    Sketcher.Constraint("Vertical", 0),
    Sketcher.Constraint("Horizontal", 1),
    Sketcher.Constraint("Vertical", 2),
    Sketcher.Constraint("Horizontal", 3),
    Sketcher.Constraint("Coincident", 0, 2, -1, 1),
    Sketcher.Constraint("DistanceX", 1, 1, 1, 2, 85.0),
    Sketcher.Constraint("DistanceY", 0, 2, 0, 1, 56.0),
])
sketch27.setExpression("Constraints[9]", "Params.sketch27_width")
sketch27.setExpression("Constraints[10]", "Params.sketch27_height")
pad27 = body34.newObject("PartDesign::Pad", "Pad026")
pad27.Profile = sketch27
pad27.setExpression("Length", "Params.pad27_length")
doc.recompute()

boolean18 = body34.newObject("PartDesign::Boolean", "Boolean017")
boolean18.Type = "Cut"
boolean18.addObjects([body33])
doc.recompute()

boolean19 = body34.newObject("PartDesign::Boolean", "Boolean018")
boolean19.Type = "Cut"
boolean19.addObjects([body32])

doc.recompute()
